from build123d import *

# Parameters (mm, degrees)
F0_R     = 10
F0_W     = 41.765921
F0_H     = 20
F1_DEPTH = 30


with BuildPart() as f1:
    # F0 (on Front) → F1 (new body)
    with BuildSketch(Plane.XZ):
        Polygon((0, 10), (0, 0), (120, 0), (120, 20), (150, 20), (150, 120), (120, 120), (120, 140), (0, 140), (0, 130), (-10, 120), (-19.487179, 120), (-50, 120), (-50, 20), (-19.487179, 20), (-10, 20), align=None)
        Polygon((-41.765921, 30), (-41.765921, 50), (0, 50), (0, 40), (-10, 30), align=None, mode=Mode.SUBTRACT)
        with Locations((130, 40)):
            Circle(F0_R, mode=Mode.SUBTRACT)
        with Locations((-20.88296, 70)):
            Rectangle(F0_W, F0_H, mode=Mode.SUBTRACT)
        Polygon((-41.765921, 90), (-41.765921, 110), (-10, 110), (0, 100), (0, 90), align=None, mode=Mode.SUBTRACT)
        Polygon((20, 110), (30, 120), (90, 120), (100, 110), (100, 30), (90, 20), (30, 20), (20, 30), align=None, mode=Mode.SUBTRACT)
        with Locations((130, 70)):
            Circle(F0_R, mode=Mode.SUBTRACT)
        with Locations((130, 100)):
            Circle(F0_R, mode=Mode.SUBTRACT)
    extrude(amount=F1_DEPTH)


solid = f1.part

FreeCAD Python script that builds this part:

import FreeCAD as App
import Part
import Sketcher
Q = App.Units.Quantity


def add_polygon(sketch, points):
    """Adds a closed chain of lines whose ends are joined by coincident constraints."""
    first, n = sketch.GeometryCount, len(points)
    for a, b in zip(points, points[1:] + points[:1]):
        sketch.addGeometry(Part.LineSegment(App.Vector(*a, 0), App.Vector(*b, 0)), False)
    for i in range(n):
        sketch.addConstraint(Sketcher.Constraint("Coincident", first + i, 2, first + (i + 1) % n, 1))

doc = App.newDocument("Part")
body = doc.addObject("PartDesign::Body", "Body")

# Sketch on XZ plane
sketch1 = body.newObject("Sketcher::SketchObject", "Sketch")
sketch1.AttachmentSupport = (doc.getObject("XZ_Plane"), [""])
sketch1.MapMode = "FlatFace"
add_polygon(sketch1, [(0, 10), (0, 0), (120, 0), (120, 20), (150, 20), (150, 120), (120, 120), (120, 140), (0, 140), (0, 130), (-10, 120), (-50, 120), (-50, 20), (-10, 20)])  # lines 0-13
add_polygon(sketch1, [(-10, 30), (-42, 30), (-42, 50), (0, 50), (0, 40)])  # lines 14-18
sketch1.addGeometry(Part.Circle(App.Vector(130, 40, 0), App.Vector(0, 0, 1), 10), False)  # 19
add_polygon(sketch1, [(0, 60), (-42, 60), (-42, 80), (0, 80)])  # lines 20-23
add_polygon(sketch1, [(0, 90), (-42, 90), (-42, 110), (-10, 110), (0, 100)])  # lines 24-28
add_polygon(sketch1, [(20, 30), (20, 110), (30, 120), (90, 120), (100, 110), (100, 30), (90, 20), (30, 20)])  # lines 29-36
sketch1.addGeometry(Part.Circle(App.Vector(130, 70, 0), App.Vector(0, 0, 1), 10), False)  # 37
sketch1.addGeometry(Part.Circle(App.Vector(130, 100, 0), App.Vector(0, 0, 1), 10), False)  # 38
sketch1.addConstraint([
    Sketcher.Constraint("Vertical", 0),
    Sketcher.Constraint("Horizontal", 1),
    Sketcher.Constraint("Vertical", 2),
    Sketcher.Constraint("Horizontal", 3),
    Sketcher.Constraint("Vertical", 4),
    Sketcher.Constraint("Horizontal", 5),
    Sketcher.Constraint("Vertical", 6),
    Sketcher.Constraint("Horizontal", 7),
    Sketcher.Constraint("Vertical", 8),
    Sketcher.Constraint("Horizontal", 10),
    Sketcher.Constraint("Vertical", 11),
    Sketcher.Constraint("Horizontal", 12),
    Sketcher.Constraint("Horizontal", 14),
    Sketcher.Constraint("Vertical", 15),
    Sketcher.Constraint("Horizontal", 16),
    Sketcher.Constraint("Vertical", 17),
    Sketcher.Constraint("Horizontal", 20),
    Sketcher.Constraint("Vertical", 21),
    Sketcher.Constraint("Horizontal", 22),
    Sketcher.Constraint("Vertical", 23),
    Sketcher.Constraint("Horizontal", 24),
    Sketcher.Constraint("Vertical", 25),
    Sketcher.Constraint("Horizontal", 26),
    Sketcher.Constraint("Vertical", 28),
    Sketcher.Constraint("Vertical", 29),
    Sketcher.Constraint("Horizontal", 31),
    Sketcher.Constraint("Vertical", 33),
    Sketcher.Constraint("Horizontal", 35),
    Sketcher.Constraint("Coincident", 0, 2, -1, 1),
    Sketcher.Constraint("Equal", 19, 37),
    Sketcher.Constraint("Equal", 37, 38),
    Sketcher.Constraint("PointOnObject", 7, 2, -2),
    Sketcher.Constraint("PointOnObject", 16, 2, -2),
    Sketcher.Constraint("PointOnObject", 22, 2, -2),
    Sketcher.Constraint("PointOnObject", 27, 2, -2),
    Sketcher.Constraint("Perpendicular", 9, 13),
    Sketcher.Constraint("Perpendicular", 13, 18),
    Sketcher.Constraint("Perpendicular", 18, 27),
    Sketcher.Constraint("Perpendicular", 27, 30),
    Sketcher.Constraint("Perpendicular", 30, 32),
    Sketcher.Constraint("Perpendicular", 32, 34),
    Sketcher.Constraint("Perpendicular", 34, 36),
    Sketcher.Constraint("Horizontal", 5, 2, 9, 2),
    Sketcher.Constraint("Horizontal", 3, 2, 11, 2),
    Sketcher.Constraint("Horizontal", 19, 3, 17, 2),
    Sketcher.Constraint("Horizontal", 38, 3, 27, 2),
    Sketcher.Constraint("Horizontal", 26, 2, 29, 2),
    Sketcher.Constraint("Horizontal", 10, 2, 30, 2),
    Sketcher.Constraint("Horizontal", 29, 2, 32, 2),
    Sketcher.Constraint("Horizontal", 18, 2, 33, 2),
    Sketcher.Constraint("Horizontal", 12, 2, 34, 2),
    Sketcher.Constraint("Horizontal", 33, 2, 36, 2),
    Sketcher.Constraint("Vertical", 19, 3, 37, 3),
    Sketcher.Constraint("Vertical", 37, 3, 38, 3),
    Sketcher.Constraint("Vertical", 2, 2, 5, 2),
    Sketcher.Constraint("Vertical", 9, 2, 12, 2),
    Sketcher.Constraint("Vertical", 12, 2, 18, 2),
    Sketcher.Constraint("Vertical", 15, 2, 20, 2),
    Sketcher.Constraint("Vertical", 21, 2, 24, 2),
    Sketcher.Constraint("Vertical", 18, 2, 26, 2),
    Sketcher.Constraint("Vertical", 31, 2, 34, 2),
    Sketcher.Constraint("Vertical", 30, 2, 35, 2),
    Sketcher.Constraint("Equal", 2, 6),
    Sketcher.Constraint("Equal", 6, 15),
    Sketcher.Constraint("Equal", 15, 21),
    Sketcher.Constraint("Equal", 23, 25),
    Sketcher.Constraint("Equal", 27, 30),
    Sketcher.Constraint("Diameter", 19, Q("20 mm")),
    Sketcher.Constraint("DistanceX", 1, 1, 1, 2, Q("120 mm")),
    Sketcher.Constraint("DistanceX", 3, 1, 3, 2, Q("30 mm")),
    Sketcher.Constraint("DistanceX", 10, 2, 10, 1, Q("40 mm")),
    Sketcher.Constraint("DistanceX", 31, 1, 31, 2, Q("60 mm")),
    Sketcher.Constraint("DistanceY", 0, 2, 0, 1, Q("10 mm")),
    Sketcher.Constraint("DistanceY", 2, 1, 2, 2, Q("20 mm")),
    Sketcher.Constraint("DistanceY", 4, 1, 4, 2, Q("100 mm")),
    Sketcher.Constraint("DistanceX", -1, 1, 19, 3, Q("130 mm")),
    Sketcher.Constraint("DistanceY", -1, 1, 37, 3, Q("70 mm")),
    Sketcher.Constraint("DistanceY", -1, 1, 20, 2, Q("60 mm")),
    Sketcher.Constraint("DistanceX", -1, 1, 29, 2, Q("20 mm")),
    Sketcher.Constraint("DistanceX", 14, 2, 14, 1, Q("31.765921 mm")),
])
pad1 = body.newObject("PartDesign::Pad", "Pad")
pad1.Profile = sketch1
pad1.Length = 30

doc.recompute()
